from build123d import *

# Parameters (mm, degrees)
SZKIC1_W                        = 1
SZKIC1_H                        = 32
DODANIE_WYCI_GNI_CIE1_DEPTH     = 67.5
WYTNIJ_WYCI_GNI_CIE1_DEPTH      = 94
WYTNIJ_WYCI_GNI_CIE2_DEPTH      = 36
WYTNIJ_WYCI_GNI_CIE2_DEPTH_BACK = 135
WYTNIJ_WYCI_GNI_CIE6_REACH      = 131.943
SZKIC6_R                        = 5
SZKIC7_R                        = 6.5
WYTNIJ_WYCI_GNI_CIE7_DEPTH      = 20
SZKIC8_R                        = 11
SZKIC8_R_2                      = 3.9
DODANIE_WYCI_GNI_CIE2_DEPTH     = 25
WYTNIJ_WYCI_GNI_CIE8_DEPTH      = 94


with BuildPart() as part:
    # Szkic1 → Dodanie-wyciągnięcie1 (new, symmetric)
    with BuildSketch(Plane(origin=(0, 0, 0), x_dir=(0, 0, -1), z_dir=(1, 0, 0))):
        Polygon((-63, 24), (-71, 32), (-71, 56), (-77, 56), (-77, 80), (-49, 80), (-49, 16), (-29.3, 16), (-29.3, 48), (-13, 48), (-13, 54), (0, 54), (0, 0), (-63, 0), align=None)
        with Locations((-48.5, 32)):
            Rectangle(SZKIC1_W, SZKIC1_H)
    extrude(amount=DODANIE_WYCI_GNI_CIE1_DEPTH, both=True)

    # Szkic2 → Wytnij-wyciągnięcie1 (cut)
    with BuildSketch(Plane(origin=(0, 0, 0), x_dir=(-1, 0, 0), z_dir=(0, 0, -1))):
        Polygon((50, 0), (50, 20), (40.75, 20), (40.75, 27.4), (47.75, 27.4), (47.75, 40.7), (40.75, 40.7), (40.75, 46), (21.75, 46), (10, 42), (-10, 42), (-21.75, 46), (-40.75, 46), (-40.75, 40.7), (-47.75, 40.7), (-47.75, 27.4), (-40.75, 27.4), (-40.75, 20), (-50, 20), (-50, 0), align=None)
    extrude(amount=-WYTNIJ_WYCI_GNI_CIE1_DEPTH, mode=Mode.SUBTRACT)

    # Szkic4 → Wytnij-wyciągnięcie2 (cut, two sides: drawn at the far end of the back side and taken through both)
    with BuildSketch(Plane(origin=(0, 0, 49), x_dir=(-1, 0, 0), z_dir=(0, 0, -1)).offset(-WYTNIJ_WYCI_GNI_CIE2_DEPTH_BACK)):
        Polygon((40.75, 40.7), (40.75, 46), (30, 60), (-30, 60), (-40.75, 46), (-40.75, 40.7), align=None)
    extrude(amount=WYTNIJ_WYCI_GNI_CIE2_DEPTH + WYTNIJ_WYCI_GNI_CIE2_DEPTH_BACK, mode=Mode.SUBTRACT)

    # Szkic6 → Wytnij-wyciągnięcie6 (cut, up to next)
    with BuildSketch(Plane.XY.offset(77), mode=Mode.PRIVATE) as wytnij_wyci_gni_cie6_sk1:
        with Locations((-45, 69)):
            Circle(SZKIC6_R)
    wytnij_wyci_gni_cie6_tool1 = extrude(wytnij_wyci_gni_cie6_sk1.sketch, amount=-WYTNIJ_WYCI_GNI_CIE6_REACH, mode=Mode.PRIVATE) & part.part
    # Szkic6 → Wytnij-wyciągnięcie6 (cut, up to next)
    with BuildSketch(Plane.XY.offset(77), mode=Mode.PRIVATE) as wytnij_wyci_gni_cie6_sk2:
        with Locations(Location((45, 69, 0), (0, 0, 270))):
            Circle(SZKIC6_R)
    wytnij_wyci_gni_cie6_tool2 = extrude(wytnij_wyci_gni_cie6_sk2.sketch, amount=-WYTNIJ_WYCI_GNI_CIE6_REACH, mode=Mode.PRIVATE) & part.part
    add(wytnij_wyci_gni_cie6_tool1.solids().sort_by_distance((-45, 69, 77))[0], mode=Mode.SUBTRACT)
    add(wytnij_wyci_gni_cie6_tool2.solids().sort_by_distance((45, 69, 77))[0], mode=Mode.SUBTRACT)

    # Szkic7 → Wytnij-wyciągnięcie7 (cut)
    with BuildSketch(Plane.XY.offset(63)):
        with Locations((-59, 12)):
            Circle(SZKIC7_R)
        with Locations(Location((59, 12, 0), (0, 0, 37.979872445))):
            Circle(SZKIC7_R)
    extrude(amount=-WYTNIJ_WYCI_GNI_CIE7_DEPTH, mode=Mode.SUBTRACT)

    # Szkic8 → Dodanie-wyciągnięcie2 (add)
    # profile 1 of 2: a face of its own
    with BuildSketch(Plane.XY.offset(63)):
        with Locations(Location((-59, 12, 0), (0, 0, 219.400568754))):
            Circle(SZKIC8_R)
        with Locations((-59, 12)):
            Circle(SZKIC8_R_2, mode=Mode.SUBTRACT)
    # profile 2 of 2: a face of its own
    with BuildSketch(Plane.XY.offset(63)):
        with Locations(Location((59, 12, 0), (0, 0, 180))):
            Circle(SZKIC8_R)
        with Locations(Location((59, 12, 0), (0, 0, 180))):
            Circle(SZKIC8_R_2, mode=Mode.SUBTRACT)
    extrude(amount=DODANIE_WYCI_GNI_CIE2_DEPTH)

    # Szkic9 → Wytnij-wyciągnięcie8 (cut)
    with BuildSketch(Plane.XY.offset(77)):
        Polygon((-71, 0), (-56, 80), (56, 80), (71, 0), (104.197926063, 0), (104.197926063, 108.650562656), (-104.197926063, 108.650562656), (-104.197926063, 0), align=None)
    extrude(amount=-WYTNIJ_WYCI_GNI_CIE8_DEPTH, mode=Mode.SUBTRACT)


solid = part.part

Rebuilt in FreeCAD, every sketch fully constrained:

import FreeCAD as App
import Part
import Sketcher
Q = App.Units.Quantity


def add_polygon(sketch, points):
    """Adds a closed chain of lines whose ends are joined by coincident constraints."""
    first, n = sketch.GeometryCount, len(points)
    for a, b in zip(points, points[1:] + points[:1]):
        sketch.addGeometry(Part.LineSegment(App.Vector(*a, 0), App.Vector(*b, 0)), False)
    for i in range(n):
        sketch.addConstraint(Sketcher.Constraint("Coincident", first + i, 2, first + (i + 1) % n, 1))

doc = App.newDocument("Part")
body = doc.addObject("PartDesign::Body", "Body")

# Sketch on YZ plane
sketch1 = body.newObject("Sketcher::SketchObject", "Sketch")
sketch1.AttachmentSupport = (doc.getObject("YZ_Plane"), [""])
sketch1.MapMode = "FlatFace"
add_polygon(sketch1, [(32, 71), (24, 63), (0, 63), (0, 0), (54, 0), (54, 13), (48, 13), (48, 29.3), (16, 29.3), (16, 48), (48, 48), (48, 49), (80, 49), (80, 77), (56, 77), (56, 71)])  # lines 0-15
sketch1.addConstraint(Sketcher.Constraint("Horizontal", 1))
sketch1.addConstraint(Sketcher.Constraint("Vertical", 2))
sketch1.addConstraint(Sketcher.Constraint("Horizontal", 3))
sketch1.addConstraint(Sketcher.Constraint("Vertical", 4))
sketch1.addConstraint(Sketcher.Constraint("Horizontal", 5))
sketch1.addConstraint(Sketcher.Constraint("Vertical", 6))
sketch1.addConstraint(Sketcher.Constraint("Horizontal", 7))
sketch1.addConstraint(Sketcher.Constraint("Vertical", 8))
sketch1.addConstraint(Sketcher.Constraint("Horizontal", 9))
sketch1.addConstraint(Sketcher.Constraint("Vertical", 10))
sketch1.addConstraint(Sketcher.Constraint("Horizontal", 11))
sketch1.addConstraint(Sketcher.Constraint("Vertical", 12))
sketch1.addConstraint(Sketcher.Constraint("Horizontal", 13))
sketch1.addConstraint(Sketcher.Constraint("Vertical", 14))
sketch1.addConstraint(Sketcher.Constraint("Horizontal", 15))
sketch1.addConstraint(Sketcher.Constraint("Coincident", 2, 2, -1, 1))
sketch1.addConstraint(Sketcher.Constraint("Vertical", 6, 2, 9, 2))
sketch1.addConstraint(Sketcher.Constraint("Equal", 9, 11))
sketch1.addConstraint(Sketcher.Constraint("Equal", 1, 13))
sketch1.addConstraint(Sketcher.Constraint("Equal", 13, 15))
sketch1.addConstraint(Sketcher.Constraint("Equal", 5, 14))
sketch1.addConstraint(Sketcher.Constraint("DistanceX", 1, 2, 1, 1, Q("24 mm")))
sketch1.addConstraint(Sketcher.Constraint("DistanceX", 3, 1, 3, 2, Q("54 mm")))
sketch1.addConstraint(Sketcher.Constraint("DistanceX", 5, 2, 5, 1, Q("6 mm")))
sketch1.addConstraint(Sketcher.Constraint("DistanceX", 7, 2, 7, 1, Q("32 mm")))
sketch1.addConstraint(Sketcher.Constraint("DistanceY", 2, 2, 2, 1, Q("63 mm")))
sketch1.addConstraint(Sketcher.Constraint("DistanceY", 4, 1, 4, 2, Q("13 mm")))
sketch1.addConstraint(Sketcher.Constraint("DistanceY", 10, 1, 10, 2, Q("1 mm")))
sketch1.addConstraint(Sketcher.Constraint("DistanceY", 12, 1, 12, 2, Q("28 mm")))
sketch1.addConstraint(Sketcher.Constraint("Angle", 0, Q("-135 deg")))
sketch1.addConstraint(Sketcher.Constraint("DistanceY", 6, 1, 6, 2, Q("16.3 mm")))
pad1 = body.newObject("PartDesign::Pad", "Pad")
pad1.Profile = sketch1
pad1.Length = 135
pad1.Midplane = True

# Sketch on XY plane
sketch2 = body.newObject("Sketcher::SketchObject", "Sketch001")
sketch2.AttachmentSupport = (doc.getObject("XY_Plane"), [""])
sketch2.MapMode = "FlatFace"
add_polygon(sketch2, [(-50, 0), (-50, 20), (-41, 20), (-41, 27), (-48, 27), (-48, 41), (-41, 41), (-41, 46), (-22, 46), (-10, 42), (10, 42), (22, 46), (41, 46), (41, 41), (48, 41), (48, 27), (41, 27), (41, 20), (50, 20), (50, 0)])  # lines 0-19
sketch2.addConstraint(Sketcher.Constraint("Vertical", 0))
sketch2.addConstraint(Sketcher.Constraint("Horizontal", 1))
sketch2.addConstraint(Sketcher.Constraint("Vertical", 2))
sketch2.addConstraint(Sketcher.Constraint("Horizontal", 3))
sketch2.addConstraint(Sketcher.Constraint("Vertical", 4))
sketch2.addConstraint(Sketcher.Constraint("Horizontal", 5))
sketch2.addConstraint(Sketcher.Constraint("Vertical", 6))
sketch2.addConstraint(Sketcher.Constraint("Horizontal", 7))
sketch2.addConstraint(Sketcher.Constraint("Horizontal", 9))
sketch2.addConstraint(Sketcher.Constraint("Horizontal", 11))
sketch2.addConstraint(Sketcher.Constraint("Vertical", 12))
sketch2.addConstraint(Sketcher.Constraint("Horizontal", 13))
sketch2.addConstraint(Sketcher.Constraint("Vertical", 14))
sketch2.addConstraint(Sketcher.Constraint("Horizontal", 15))
sketch2.addConstraint(Sketcher.Constraint("Vertical", 16))
sketch2.addConstraint(Sketcher.Constraint("Horizontal", 17))
sketch2.addConstraint(Sketcher.Constraint("Vertical", 18))
sketch2.addConstraint(Sketcher.Constraint("Horizontal", 19))
sketch2.addConstraint(Sketcher.Constraint("Symmetric", 18, 2, 19, 2, -1, 1))
sketch2.addConstraint(Sketcher.Constraint("Symmetric", 7, 2, 10, 2, -2))
sketch2.addConstraint(Sketcher.Constraint("Symmetric", 5, 2, 12, 2, -2))
sketch2.addConstraint(Sketcher.Constraint("Symmetric", 3, 2, 14, 2, -2))
sketch2.addConstraint(Sketcher.Constraint("Symmetric", 1, 2, 16, 2, -2))
sketch2.addConstraint(Sketcher.Constraint("Vertical", 2, 2, 5, 2))
sketch2.addConstraint(Sketcher.Constraint("Equal", 9, 0))
sketch2.addConstraint(Sketcher.Constraint("Equal", 8, 10))
sketch2.addConstraint(Sketcher.Constraint("DistanceX", 3, 2, 3, 1, Q("7 mm")))
sketch2.addConstraint(Sketcher.Constraint("DistanceX", 7, 1, 7, 2, Q("19 mm")))
sketch2.addConstraint(Sketcher.Constraint("DistanceX", 9, 1, 9, 2, Q("20 mm")))
sketch2.addConstraint(Sketcher.Constraint("DistanceX", 19, 2, 19, 1, Q("100 mm")))
sketch2.addConstraint(Sketcher.Constraint("DistanceY", 2, 1, 2, 2, Q("7.4 mm")))
sketch2.addConstraint(Sketcher.Constraint("DistanceY", 4, 1, 4, 2, Q("13.3 mm")))
sketch2.addConstraint(Sketcher.Constraint("DistanceY", 6, 1, 6, 2, Q("5.3 mm")))
sketch2.addConstraint(Sketcher.Constraint("DistanceY", -1, 1, 8, 2, Q("42 mm")))
sketch2.addConstraint(Sketcher.Constraint("DistanceX", 1, 1, 1, 2, Q("9.25 mm")))
pocket1 = body.newObject("PartDesign::Pocket", "Pocket")
pocket1.Profile = sketch2
pocket1.Length = 94
pocket1.Reversed = True

# Sketch on XY plane
sketch3 = body.newObject("Sketcher::SketchObject", "Sketch002")
sketch3.AttachmentSupport = (doc.getObject("XY_Plane"), [""])
sketch3.MapMode = "FlatFace"
sketch3.AttachmentOffset = App.Placement(App.Vector(0, 0, 49), App.Rotation())
add_polygon(sketch3, [(-41, 41), (-41, 46), (-30, 60), (30, 60), (41, 46), (41, 41)])  # lines 0-5
sketch3.addConstraint(Sketcher.Constraint("Vertical", 0))
sketch3.addConstraint(Sketcher.Constraint("Horizontal", 2))
sketch3.addConstraint(Sketcher.Constraint("Vertical", 4))
sketch3.addConstraint(Sketcher.Constraint("Horizontal", 5))
sketch3.addConstraint(Sketcher.Constraint("Symmetric", 0, 2, 3, 2, -2))
sketch3.addConstraint(Sketcher.Constraint("Equal", 1, 3))
sketch3.addConstraint(Sketcher.Constraint("DistanceX", 2, 1, 2, 2, Q("60 mm")))
sketch3.addConstraint(Sketcher.Constraint("DistanceX", 5, 2, 5, 1, Q("81.5 mm")))
sketch3.addConstraint(Sketcher.Constraint("DistanceY", 0, 1, 0, 2, Q("5.3 mm")))
sketch3.addConstraint(Sketcher.Constraint("DistanceY", -1, 1, 0, 2, Q("46 mm")))
sketch3.addConstraint(Sketcher.Constraint("DistanceY", -1, 1, 1, 2, Q("60 mm")))
pocket2 = body.newObject("PartDesign::Pocket", "Pocket001")
pocket2.Profile = sketch3
pocket2.Type = "TwoLengths"
pocket2.Length = 36
pocket2.Length2 = 135

# Sketch on XY plane
sketch4 = body.newObject("Sketcher::SketchObject", "Sketch003")
sketch4.AttachmentSupport = (doc.getObject("XY_Plane"), [""])
sketch4.MapMode = "FlatFace"
sketch4.AttachmentOffset = App.Placement(App.Vector(0, 0, 77), App.Rotation())
sketch4.addGeometry(Part.Circle(App.Vector(-45, 69, 0), App.Vector(0, 0, 1), 5), False)
sketch4.addConstraint(Sketcher.Constraint("Diameter", 0, Q("10 mm")))
sketch4.addConstraint(Sketcher.Constraint("DistanceX", 0, 3, -1, 1, Q("45 mm")))
sketch4.addConstraint(Sketcher.Constraint("DistanceY", -1, 1, 0, 3, Q("69 mm")))
pocket3 = body.newObject("PartDesign::Pocket", "Pocket002")
pocket3.Profile = sketch4
pocket3.Type = "UpToFirst"

# Sketch on XY plane
sketch5 = body.newObject("Sketcher::SketchObject", "Sketch004")
sketch5.AttachmentSupport = (doc.getObject("XY_Plane"), [""])
sketch5.MapMode = "FlatFace"
sketch5.AttachmentOffset = App.Placement(App.Vector(0, 0, 77), App.Rotation())
sketch5.addGeometry(Part.Circle(App.Vector(45, 69, 0), App.Vector(0, 0, 1), 5), False)
sketch5.addConstraint(Sketcher.Constraint("Diameter", 0, Q("10 mm")))
sketch5.addConstraint(Sketcher.Constraint("DistanceX", -1, 1, 0, 3, Q("45 mm")))
sketch5.addConstraint(Sketcher.Constraint("DistanceY", -1, 1, 0, 3, Q("69 mm")))
pocket4 = body.newObject("PartDesign::Pocket", "Pocket003")
pocket4.Profile = sketch5
pocket4.Type = "UpToFirst"

# Sketch on XY plane
sketch6 = body.newObject("Sketcher::SketchObject", "Sketch005")
sketch6.AttachmentSupport = (doc.getObject("XY_Plane"), [""])
sketch6.MapMode = "FlatFace"
sketch6.AttachmentOffset = App.Placement(App.Vector(0, 0, 63), App.Rotation())
sketch6.addGeometry(Part.Circle(App.Vector(-59, 12, 0), App.Vector(0, 0, 1), 6), False)
sketch6.addGeometry(Part.Circle(App.Vector(59, 12, 0), App.Vector(0, 0, 1), 6), False)
sketch6.addConstraint(Sketcher.Constraint("Equal", 0, 1))
sketch6.addConstraint(Sketcher.Constraint("Symmetric", 0, 3, 1, 3, -2))
sketch6.addConstraint(Sketcher.Constraint("Diameter", 0, Q("13 mm")))
sketch6.addConstraint(Sketcher.Constraint("DistanceX", 0, 3, -1, 1, Q("59 mm")))
sketch6.addConstraint(Sketcher.Constraint("DistanceY", -1, 1, 0, 3, Q("12 mm")))
pocket5 = body.newObject("PartDesign::Pocket", "Pocket004")
pocket5.Profile = sketch6
pocket5.Length = 20

# Sketch on XY plane
sketch7 = body.newObject("Sketcher::SketchObject", "Sketch006")
sketch7.AttachmentSupport = (doc.getObject("XY_Plane"), [""])
sketch7.MapMode = "FlatFace"
sketch7.AttachmentOffset = App.Placement(App.Vector(0, 0, 63), App.Rotation())
sketch7.addGeometry(Part.Circle(App.Vector(-59, 12, 0), App.Vector(0, 0, 1), 11), False)
sketch7.addGeometry(Part.Circle(App.Vector(-59, 12, 0), App.Vector(0, 0, 1), 3.9), False)
sketch7.addGeometry(Part.Circle(App.Vector(59, 12, 0), App.Vector(0, 0, 1), 11), False)
sketch7.addGeometry(Part.Circle(App.Vector(59, 12, 0), App.Vector(0, 0, 1), 3.9), False)
sketch7.addConstraint(Sketcher.Constraint("Coincident", 1, 3, 0, 3))
sketch7.addConstraint(Sketcher.Constraint("Coincident", 3, 3, 2, 3))
sketch7.addConstraint(Sketcher.Constraint("Equal", 0, 2))
sketch7.addConstraint(Sketcher.Constraint("Equal", 1, 3))
sketch7.addConstraint(Sketcher.Constraint("Symmetric", 0, 3, 2, 3, -2))
sketch7.addConstraint(Sketcher.Constraint("Diameter", 0, Q("22 mm")))
sketch7.addConstraint(Sketcher.Constraint("Diameter", 1, Q("7.8 mm")))
sketch7.addConstraint(Sketcher.Constraint("DistanceX", 0, 3, -1, 1, Q("59 mm")))
sketch7.addConstraint(Sketcher.Constraint("DistanceY", -1, 1, 0, 3, Q("12 mm")))
pad2 = body.newObject("PartDesign::Pad", "Pad001")
pad2.Profile = sketch7
pad2.Length = 25

# Sketch on XY plane
sketch8 = body.newObject("Sketcher::SketchObject", "Sketch007")
sketch8.AttachmentSupport = (doc.getObject("XY_Plane"), [""])
sketch8.MapMode = "FlatFace"
sketch8.AttachmentOffset = App.Placement(App.Vector(0, 0, 77), App.Rotation())
add_polygon(sketch8, [(-71, 0), (-56, 80), (56, 80), (71, 0), (104, 0), (104, 109), (-104, 109), (-104, 0)])  # lines 0-7
sketch8.addConstraint(Sketcher.Constraint("Horizontal", 1))
sketch8.addConstraint(Sketcher.Constraint("Horizontal", 3))
sketch8.addConstraint(Sketcher.Constraint("Vertical", 4))
sketch8.addConstraint(Sketcher.Constraint("Horizontal", 5))
sketch8.addConstraint(Sketcher.Constraint("Vertical", 6))
sketch8.addConstraint(Sketcher.Constraint("Horizontal", 7))
sketch8.addConstraint(Sketcher.Constraint("Symmetric", 3, 2, 6, 2, -1, 1))
sketch8.addConstraint(Sketcher.Constraint("Symmetric", 2, 2, 7, 2, -2))
sketch8.addConstraint(Sketcher.Constraint("Equal", 0, 2))
sketch8.addConstraint(Sketcher.Constraint("DistanceX", 1, 1, 1, 2, Q("112 mm")))
sketch8.addConstraint(Sketcher.Constraint("DistanceY", -1, 1, 0, 2, Q("80 mm")))
sketch8.addConstraint(Sketcher.Constraint("DistanceX", -1, 1, 2, 2, Q("71 mm")))
sketch8.addConstraint(Sketcher.Constraint("DistanceX", 3, 1, 3, 2, Q("33.197926 mm")))
sketch8.addConstraint(Sketcher.Constraint("DistanceY", 4, 1, 4, 2, Q("108.650563 mm")))
pocket6 = body.newObject("PartDesign::Pocket", "Pocket005")
pocket6.Profile = sketch8
pocket6.Length = 94

doc.recompute()
